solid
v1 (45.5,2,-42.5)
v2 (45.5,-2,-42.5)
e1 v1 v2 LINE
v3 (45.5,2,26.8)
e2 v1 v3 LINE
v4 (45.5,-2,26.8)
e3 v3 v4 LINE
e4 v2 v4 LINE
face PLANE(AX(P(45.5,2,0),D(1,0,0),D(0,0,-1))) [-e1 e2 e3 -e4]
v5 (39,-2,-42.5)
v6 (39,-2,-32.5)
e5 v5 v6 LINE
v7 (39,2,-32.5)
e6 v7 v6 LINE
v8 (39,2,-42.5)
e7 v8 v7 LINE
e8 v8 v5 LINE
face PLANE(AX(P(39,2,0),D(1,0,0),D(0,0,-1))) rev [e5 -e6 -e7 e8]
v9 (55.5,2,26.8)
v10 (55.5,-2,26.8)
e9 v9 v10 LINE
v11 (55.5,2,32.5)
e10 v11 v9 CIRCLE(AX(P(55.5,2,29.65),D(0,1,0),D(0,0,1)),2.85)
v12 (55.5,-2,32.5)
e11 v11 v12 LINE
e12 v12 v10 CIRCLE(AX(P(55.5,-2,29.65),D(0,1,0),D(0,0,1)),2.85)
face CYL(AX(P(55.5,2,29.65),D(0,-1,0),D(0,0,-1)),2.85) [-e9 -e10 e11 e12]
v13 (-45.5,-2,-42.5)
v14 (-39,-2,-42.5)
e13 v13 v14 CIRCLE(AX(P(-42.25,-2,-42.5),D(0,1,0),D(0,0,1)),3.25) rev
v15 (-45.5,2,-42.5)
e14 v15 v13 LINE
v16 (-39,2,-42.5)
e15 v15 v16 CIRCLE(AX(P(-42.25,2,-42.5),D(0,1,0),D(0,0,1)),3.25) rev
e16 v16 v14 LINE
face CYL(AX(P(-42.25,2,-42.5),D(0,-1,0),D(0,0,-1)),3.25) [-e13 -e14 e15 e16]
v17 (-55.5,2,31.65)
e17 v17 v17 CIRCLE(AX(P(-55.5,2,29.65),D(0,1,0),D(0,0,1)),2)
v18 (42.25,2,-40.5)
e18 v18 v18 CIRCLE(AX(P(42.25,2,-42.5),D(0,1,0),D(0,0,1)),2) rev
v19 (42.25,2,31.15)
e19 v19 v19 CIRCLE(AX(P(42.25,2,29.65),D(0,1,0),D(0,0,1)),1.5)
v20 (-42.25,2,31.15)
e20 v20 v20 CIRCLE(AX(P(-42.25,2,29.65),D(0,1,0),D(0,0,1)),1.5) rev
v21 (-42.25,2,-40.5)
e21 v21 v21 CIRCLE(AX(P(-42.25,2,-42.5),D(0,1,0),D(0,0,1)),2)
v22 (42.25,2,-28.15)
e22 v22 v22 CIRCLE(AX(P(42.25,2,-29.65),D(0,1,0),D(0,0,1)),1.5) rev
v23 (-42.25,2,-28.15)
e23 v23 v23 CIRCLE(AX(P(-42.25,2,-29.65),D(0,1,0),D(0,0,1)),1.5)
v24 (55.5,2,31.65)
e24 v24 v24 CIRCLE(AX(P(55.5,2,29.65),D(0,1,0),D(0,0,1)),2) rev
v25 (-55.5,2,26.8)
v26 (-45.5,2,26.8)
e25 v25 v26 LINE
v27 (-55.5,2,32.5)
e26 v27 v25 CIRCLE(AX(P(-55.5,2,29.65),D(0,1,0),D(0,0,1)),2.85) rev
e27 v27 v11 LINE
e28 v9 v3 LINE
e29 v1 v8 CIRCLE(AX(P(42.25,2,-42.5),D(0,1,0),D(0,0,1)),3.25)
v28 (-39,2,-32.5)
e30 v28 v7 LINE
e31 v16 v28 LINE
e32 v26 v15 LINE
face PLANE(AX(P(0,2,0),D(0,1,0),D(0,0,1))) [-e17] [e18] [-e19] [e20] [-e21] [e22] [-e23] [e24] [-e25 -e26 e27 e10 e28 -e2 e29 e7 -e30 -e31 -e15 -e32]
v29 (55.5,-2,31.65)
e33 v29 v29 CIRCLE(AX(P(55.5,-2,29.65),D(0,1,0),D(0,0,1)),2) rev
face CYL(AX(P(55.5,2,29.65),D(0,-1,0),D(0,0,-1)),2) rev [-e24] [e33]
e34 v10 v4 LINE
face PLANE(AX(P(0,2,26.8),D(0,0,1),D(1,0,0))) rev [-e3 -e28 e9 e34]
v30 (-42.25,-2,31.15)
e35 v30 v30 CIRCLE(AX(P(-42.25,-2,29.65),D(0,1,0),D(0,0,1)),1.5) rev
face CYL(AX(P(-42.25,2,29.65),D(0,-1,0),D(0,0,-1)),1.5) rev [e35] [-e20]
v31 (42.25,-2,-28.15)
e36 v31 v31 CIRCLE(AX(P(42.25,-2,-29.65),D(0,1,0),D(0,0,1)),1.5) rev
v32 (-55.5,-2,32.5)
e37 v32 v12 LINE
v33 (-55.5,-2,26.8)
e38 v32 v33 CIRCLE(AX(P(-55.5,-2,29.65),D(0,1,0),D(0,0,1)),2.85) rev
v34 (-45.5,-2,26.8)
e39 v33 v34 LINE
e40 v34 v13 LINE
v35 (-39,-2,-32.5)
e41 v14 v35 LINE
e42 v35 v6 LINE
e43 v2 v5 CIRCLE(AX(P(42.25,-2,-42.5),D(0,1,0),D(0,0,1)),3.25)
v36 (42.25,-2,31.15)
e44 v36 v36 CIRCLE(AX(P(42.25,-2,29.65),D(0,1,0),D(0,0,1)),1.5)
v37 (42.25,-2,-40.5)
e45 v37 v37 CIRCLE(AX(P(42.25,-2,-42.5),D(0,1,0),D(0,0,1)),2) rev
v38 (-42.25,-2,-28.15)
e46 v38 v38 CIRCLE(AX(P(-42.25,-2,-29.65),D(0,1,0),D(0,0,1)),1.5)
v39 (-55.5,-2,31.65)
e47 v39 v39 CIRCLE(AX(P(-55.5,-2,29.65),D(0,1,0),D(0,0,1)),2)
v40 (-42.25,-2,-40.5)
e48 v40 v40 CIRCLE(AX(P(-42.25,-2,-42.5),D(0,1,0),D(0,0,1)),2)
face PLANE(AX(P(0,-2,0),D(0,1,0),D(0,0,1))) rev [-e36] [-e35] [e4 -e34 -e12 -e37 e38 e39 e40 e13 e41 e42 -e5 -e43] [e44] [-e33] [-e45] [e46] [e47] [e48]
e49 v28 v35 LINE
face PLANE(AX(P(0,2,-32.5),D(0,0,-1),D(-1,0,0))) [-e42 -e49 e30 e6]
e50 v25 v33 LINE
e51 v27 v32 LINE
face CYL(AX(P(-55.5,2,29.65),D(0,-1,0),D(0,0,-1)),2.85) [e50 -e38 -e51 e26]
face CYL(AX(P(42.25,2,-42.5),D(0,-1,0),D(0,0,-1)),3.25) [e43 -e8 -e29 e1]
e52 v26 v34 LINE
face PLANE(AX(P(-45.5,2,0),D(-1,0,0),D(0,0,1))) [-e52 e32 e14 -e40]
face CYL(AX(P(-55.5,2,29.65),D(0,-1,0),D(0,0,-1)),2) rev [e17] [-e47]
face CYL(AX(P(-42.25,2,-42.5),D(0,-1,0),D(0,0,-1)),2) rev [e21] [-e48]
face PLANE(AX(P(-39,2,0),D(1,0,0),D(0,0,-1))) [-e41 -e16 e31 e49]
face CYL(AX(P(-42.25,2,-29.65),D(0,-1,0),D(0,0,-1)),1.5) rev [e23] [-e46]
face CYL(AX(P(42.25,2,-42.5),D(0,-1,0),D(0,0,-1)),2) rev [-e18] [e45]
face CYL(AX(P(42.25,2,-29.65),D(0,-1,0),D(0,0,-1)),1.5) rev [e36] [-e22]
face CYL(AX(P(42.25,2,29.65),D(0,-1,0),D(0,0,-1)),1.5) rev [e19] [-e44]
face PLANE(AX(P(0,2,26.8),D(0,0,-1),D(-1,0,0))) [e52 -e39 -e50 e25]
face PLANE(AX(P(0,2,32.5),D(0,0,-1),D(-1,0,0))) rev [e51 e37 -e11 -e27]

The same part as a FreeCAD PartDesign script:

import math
import FreeCAD as App
import Part
import Sketcher
from FreeCAD import Vector
Q = App.Units.Quantity

doc = App.newDocument("Part")
body = doc.addObject("PartDesign::Body", "Body")

# Sketch on XZ plane
sketch1 = body.newObject("Sketcher::SketchObject", "Sketch")
sketch1.AttachmentSupport = (doc.getObject("XZ_Plane"), [""])
sketch1.MapMode = "FlatFace"
sketch1.addGeometry([
    Part.LineSegment(Vector(-45.5, 26.8, 0), Vector(-55.5, 26.8, 0)),  # 0
    Part.ArcOfCircle(Part.Circle(Vector(-55.5, 29.65, 0), Vector(0, 0, 1), 2.85), math.radians(90), math.radians(270)),  # 1
    Part.LineSegment(Vector(-55.5, 32.5, 0), Vector(55.5, 32.5, 0)),  # 2
    Part.ArcOfCircle(Part.Circle(Vector(55.5, 29.65, 0), Vector(0, 0, 1), 2.85), math.radians(-90), math.radians(90)),  # 3
    Part.LineSegment(Vector(55.5, 26.8, 0), Vector(45.5, 26.8, 0)),  # 4
    Part.LineSegment(Vector(45.5, 26.8, 0), Vector(45.5, -42.5, 0)),  # 5
    Part.ArcOfCircle(Part.Circle(Vector(42.25, -42.5, 0), Vector(0, 0, 1), 3.25), math.radians(180), math.radians(360)),  # 6
    Part.LineSegment(Vector(39, -42.5, 0), Vector(39, -32.5, 0)),  # 7
    Part.LineSegment(Vector(39, -32.5, 0), Vector(-39, -32.5, 0)),  # 8
    Part.LineSegment(Vector(-39, -32.5, 0), Vector(-39, -42.5, 0)),  # 9
    Part.ArcOfCircle(Part.Circle(Vector(-42.25, -42.5, 0), Vector(0, 0, 1), 3.25), math.radians(180), math.radians(360)),  # 10
    Part.LineSegment(Vector(-45.5, -42.5, 0), Vector(-45.5, 26.8, 0)),  # 11
    Part.Circle(Vector(-55.5, 29.65, 0), Vector(0, 0, 1), 2),  # 12
    Part.Circle(Vector(-42.25, 29.65, 0), Vector(0, 0, 1), 1.5),  # 13
    Part.Circle(Vector(42.25, 29.65, 0), Vector(0, 0, 1), 1.5),  # 14
    Part.Circle(Vector(55.5, 29.65, 0), Vector(0, 0, 1), 2),  # 15
    Part.Circle(Vector(-42.25, -29.65, 0), Vector(0, 0, 1), 1.5),  # 16
    Part.Circle(Vector(-42.25, -42.5, 0), Vector(0, 0, 1), 2),  # 17
    Part.Circle(Vector(42.25, -29.65, 0), Vector(0, 0, 1), 1.5),  # 18
    Part.Circle(Vector(42.25, -42.5, 0), Vector(0, 0, 1), 2),  # 19
], False)
sketch1.addConstraint([
    Sketcher.Constraint("Tangent", 0, 2, 1, 2),
    Sketcher.Constraint("Tangent", 1, 1, 2, 1),
    Sketcher.Constraint("Tangent", 2, 2, 3, 2),
    Sketcher.Constraint("Tangent", 3, 1, 4, 1),
    Sketcher.Constraint("Coincident", 4, 2, 5, 1),
    Sketcher.Constraint("Tangent", 5, 2, 6, 2),
    Sketcher.Constraint("Tangent", 6, 1, 7, 1),
    Sketcher.Constraint("Coincident", 7, 2, 8, 1),
    Sketcher.Constraint("Coincident", 8, 2, 9, 1),
    Sketcher.Constraint("Tangent", 9, 2, 10, 2),
    Sketcher.Constraint("Tangent", 10, 1, 11, 1),
    Sketcher.Constraint("Coincident", 11, 2, 0, 1),
    Sketcher.Constraint("Horizontal", 0),
    Sketcher.Constraint("Horizontal", 2),
    Sketcher.Constraint("Horizontal", 4),
    Sketcher.Constraint("Vertical", 5),
    Sketcher.Constraint("Vertical", 7),
    Sketcher.Constraint("Horizontal", 8),
    Sketcher.Constraint("Vertical", 9),
    Sketcher.Constraint("Vertical", 11),
    Sketcher.Constraint("Coincident", 12, 3, 1, 3),
    Sketcher.Constraint("Coincident", 15, 3, 3, 3),
    Sketcher.Constraint("Coincident", 17, 3, 10, 3),
    Sketcher.Constraint("Coincident", 19, 3, 6, 3),
    Sketcher.Constraint("Equal", 1, 3),
    Sketcher.Constraint("Equal", 6, 10),
    Sketcher.Constraint("Equal", 13, 14),
    Sketcher.Constraint("Equal", 12, 15),
    Sketcher.Constraint("Equal", 14, 16),
    Sketcher.Constraint("Equal", 15, 17),
    Sketcher.Constraint("Equal", 16, 18),
    Sketcher.Constraint("Equal", 17, 19),
    Sketcher.Constraint("Symmetric", 14, 3, 16, 3, -1, 1),
    Sketcher.Constraint("Symmetric", 13, 3, 18, 3, -1, 1),
    Sketcher.Constraint("Symmetric", 6, 3, 10, 3, -2),
    Sketcher.Constraint("Symmetric", 13, 3, 14, 3, -2),
    Sketcher.Constraint("Horizontal", 12, 3, 13, 3),
    Sketcher.Constraint("Vertical", 10, 3, 13, 3),
    Sketcher.Constraint("Equal", 0, 4),
    Sketcher.Constraint("Equal", 4, 7),
    Sketcher.Constraint("Diameter", 12, Q("4 mm")),
    Sketcher.Constraint("Diameter", 13, Q("3 mm")),
    Sketcher.Constraint("DistanceX", 0, 2, 0, 1, Q("10 mm")),
    Sketcher.Constraint("DistanceX", 2, 1, 2, 2, Q("111 mm")),
    Sketcher.Constraint("DistanceX", 8, 2, 8, 1, Q("78 mm")),
    Sketcher.Constraint("Radius", 1, Q("2.85 mm")),
    Sketcher.Constraint("DistanceY", 5, 2, 5, 1, Q("69.3 mm")),
    Sketcher.Constraint("DistanceY", 6, 3, -1, 1, Q("42.5 mm")),
])
pad1 = body.newObject("PartDesign::Pad", "Pad")
pad1.Profile = sketch1
pad1.Length = 4
pad1.Midplane = True

doc.recompute()
